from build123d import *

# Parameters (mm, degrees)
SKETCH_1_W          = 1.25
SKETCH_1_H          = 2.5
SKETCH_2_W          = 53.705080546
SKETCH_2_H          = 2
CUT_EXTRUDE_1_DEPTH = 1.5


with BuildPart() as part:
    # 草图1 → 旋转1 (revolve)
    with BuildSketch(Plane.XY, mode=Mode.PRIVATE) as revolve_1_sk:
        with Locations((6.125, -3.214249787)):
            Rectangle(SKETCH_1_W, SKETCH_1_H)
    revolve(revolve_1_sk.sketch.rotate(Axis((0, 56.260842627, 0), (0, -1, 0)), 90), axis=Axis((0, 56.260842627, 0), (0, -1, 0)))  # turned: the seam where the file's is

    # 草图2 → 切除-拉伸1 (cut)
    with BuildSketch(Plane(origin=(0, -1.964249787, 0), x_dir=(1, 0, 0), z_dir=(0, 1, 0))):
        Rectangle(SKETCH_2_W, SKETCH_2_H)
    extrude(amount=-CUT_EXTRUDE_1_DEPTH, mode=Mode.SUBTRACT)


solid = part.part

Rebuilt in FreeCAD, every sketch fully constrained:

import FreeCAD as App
import Part
import Sketcher
from FreeCAD import Vector


def add_polygon(sketch, points):
    """Adds a closed chain of lines whose ends are joined by coincident constraints."""
    first, n = sketch.GeometryCount, len(points)
    for a, b in zip(points, points[1:] + points[:1]):
        sketch.addGeometry(Part.LineSegment(App.Vector(*a, 0), App.Vector(*b, 0)), False)
    for i in range(n):
        sketch.addConstraint(Sketcher.Constraint("Coincident", first + i, 2, first + (i + 1) % n, 1))

doc = App.newDocument("Part")
body = doc.addObject("PartDesign::Body", "Body")

# Sketch on XY plane
sketch1 = body.newObject("Sketcher::SketchObject", "Sketch")
sketch1.AttachmentSupport = (doc.getObject("XY_Plane"), [""])
sketch1.MapMode = "FlatFace"
add_polygon(sketch1, [(5.5, -1.96425), (5.5, -4.46425), (6.75, -4.46425), (6.75, -1.96425)])  # lines 0-3
sketch1.addConstraint([
    Sketcher.Constraint("Vertical", 0),
    Sketcher.Constraint("Horizontal", 1),
    Sketcher.Constraint("Vertical", 2),
    Sketcher.Constraint("Horizontal", 3),
    Sketcher.Constraint("DistanceY", 0, 2, 0, 1, 2.5),
    Sketcher.Constraint("DistanceX", 1, 1, 1, 2, 1.25),
    Sketcher.Constraint("DistanceX", -1, 1, 0, 2, 5.5),
    Sketcher.Constraint("DistanceY", 0, 2, -1, 1, 4.46425),
])
revolution = body.newObject("PartDesign::Revolution", "Revolution")
revolution.Profile = sketch1
revolution.ReferenceAxis = (sketch1, ["V_Axis"])
revolution.Angle = 360

# Sketch on XZ plane
sketch2 = body.newObject("Sketcher::SketchObject", "Sketch001")
sketch2.AttachmentSupport = (doc.getObject("XZ_Plane"), [""])
sketch2.MapMode = "FlatFace"
sketch2.AttachmentOffset = App.Placement(Vector(0, 0, 1.96425), App.Rotation())
add_polygon(sketch2, [(-26.85254, -1), (-26.85254, 1), (26.85254, 1), (26.85254, -1)])  # lines 0-3
sketch2.addConstraint([
    Sketcher.Constraint("Vertical", 0),
    Sketcher.Constraint("Horizontal", 1),
    Sketcher.Constraint("Vertical", 2),
    Sketcher.Constraint("Horizontal", 3),
    Sketcher.Constraint("Symmetric", 0, 2, 2, 2, -1, 1),
    Sketcher.Constraint("DistanceY", 0, 1, 0, 2, 2.0),
    Sketcher.Constraint("DistanceX", 1, 1, 1, 2, 53.705081),
])
pocket1 = body.newObject("PartDesign::Pocket", "Pocket")
pocket1.Profile = sketch2
pocket1.Length = 1.5
pocket1.Reversed = True

doc.recompute()
